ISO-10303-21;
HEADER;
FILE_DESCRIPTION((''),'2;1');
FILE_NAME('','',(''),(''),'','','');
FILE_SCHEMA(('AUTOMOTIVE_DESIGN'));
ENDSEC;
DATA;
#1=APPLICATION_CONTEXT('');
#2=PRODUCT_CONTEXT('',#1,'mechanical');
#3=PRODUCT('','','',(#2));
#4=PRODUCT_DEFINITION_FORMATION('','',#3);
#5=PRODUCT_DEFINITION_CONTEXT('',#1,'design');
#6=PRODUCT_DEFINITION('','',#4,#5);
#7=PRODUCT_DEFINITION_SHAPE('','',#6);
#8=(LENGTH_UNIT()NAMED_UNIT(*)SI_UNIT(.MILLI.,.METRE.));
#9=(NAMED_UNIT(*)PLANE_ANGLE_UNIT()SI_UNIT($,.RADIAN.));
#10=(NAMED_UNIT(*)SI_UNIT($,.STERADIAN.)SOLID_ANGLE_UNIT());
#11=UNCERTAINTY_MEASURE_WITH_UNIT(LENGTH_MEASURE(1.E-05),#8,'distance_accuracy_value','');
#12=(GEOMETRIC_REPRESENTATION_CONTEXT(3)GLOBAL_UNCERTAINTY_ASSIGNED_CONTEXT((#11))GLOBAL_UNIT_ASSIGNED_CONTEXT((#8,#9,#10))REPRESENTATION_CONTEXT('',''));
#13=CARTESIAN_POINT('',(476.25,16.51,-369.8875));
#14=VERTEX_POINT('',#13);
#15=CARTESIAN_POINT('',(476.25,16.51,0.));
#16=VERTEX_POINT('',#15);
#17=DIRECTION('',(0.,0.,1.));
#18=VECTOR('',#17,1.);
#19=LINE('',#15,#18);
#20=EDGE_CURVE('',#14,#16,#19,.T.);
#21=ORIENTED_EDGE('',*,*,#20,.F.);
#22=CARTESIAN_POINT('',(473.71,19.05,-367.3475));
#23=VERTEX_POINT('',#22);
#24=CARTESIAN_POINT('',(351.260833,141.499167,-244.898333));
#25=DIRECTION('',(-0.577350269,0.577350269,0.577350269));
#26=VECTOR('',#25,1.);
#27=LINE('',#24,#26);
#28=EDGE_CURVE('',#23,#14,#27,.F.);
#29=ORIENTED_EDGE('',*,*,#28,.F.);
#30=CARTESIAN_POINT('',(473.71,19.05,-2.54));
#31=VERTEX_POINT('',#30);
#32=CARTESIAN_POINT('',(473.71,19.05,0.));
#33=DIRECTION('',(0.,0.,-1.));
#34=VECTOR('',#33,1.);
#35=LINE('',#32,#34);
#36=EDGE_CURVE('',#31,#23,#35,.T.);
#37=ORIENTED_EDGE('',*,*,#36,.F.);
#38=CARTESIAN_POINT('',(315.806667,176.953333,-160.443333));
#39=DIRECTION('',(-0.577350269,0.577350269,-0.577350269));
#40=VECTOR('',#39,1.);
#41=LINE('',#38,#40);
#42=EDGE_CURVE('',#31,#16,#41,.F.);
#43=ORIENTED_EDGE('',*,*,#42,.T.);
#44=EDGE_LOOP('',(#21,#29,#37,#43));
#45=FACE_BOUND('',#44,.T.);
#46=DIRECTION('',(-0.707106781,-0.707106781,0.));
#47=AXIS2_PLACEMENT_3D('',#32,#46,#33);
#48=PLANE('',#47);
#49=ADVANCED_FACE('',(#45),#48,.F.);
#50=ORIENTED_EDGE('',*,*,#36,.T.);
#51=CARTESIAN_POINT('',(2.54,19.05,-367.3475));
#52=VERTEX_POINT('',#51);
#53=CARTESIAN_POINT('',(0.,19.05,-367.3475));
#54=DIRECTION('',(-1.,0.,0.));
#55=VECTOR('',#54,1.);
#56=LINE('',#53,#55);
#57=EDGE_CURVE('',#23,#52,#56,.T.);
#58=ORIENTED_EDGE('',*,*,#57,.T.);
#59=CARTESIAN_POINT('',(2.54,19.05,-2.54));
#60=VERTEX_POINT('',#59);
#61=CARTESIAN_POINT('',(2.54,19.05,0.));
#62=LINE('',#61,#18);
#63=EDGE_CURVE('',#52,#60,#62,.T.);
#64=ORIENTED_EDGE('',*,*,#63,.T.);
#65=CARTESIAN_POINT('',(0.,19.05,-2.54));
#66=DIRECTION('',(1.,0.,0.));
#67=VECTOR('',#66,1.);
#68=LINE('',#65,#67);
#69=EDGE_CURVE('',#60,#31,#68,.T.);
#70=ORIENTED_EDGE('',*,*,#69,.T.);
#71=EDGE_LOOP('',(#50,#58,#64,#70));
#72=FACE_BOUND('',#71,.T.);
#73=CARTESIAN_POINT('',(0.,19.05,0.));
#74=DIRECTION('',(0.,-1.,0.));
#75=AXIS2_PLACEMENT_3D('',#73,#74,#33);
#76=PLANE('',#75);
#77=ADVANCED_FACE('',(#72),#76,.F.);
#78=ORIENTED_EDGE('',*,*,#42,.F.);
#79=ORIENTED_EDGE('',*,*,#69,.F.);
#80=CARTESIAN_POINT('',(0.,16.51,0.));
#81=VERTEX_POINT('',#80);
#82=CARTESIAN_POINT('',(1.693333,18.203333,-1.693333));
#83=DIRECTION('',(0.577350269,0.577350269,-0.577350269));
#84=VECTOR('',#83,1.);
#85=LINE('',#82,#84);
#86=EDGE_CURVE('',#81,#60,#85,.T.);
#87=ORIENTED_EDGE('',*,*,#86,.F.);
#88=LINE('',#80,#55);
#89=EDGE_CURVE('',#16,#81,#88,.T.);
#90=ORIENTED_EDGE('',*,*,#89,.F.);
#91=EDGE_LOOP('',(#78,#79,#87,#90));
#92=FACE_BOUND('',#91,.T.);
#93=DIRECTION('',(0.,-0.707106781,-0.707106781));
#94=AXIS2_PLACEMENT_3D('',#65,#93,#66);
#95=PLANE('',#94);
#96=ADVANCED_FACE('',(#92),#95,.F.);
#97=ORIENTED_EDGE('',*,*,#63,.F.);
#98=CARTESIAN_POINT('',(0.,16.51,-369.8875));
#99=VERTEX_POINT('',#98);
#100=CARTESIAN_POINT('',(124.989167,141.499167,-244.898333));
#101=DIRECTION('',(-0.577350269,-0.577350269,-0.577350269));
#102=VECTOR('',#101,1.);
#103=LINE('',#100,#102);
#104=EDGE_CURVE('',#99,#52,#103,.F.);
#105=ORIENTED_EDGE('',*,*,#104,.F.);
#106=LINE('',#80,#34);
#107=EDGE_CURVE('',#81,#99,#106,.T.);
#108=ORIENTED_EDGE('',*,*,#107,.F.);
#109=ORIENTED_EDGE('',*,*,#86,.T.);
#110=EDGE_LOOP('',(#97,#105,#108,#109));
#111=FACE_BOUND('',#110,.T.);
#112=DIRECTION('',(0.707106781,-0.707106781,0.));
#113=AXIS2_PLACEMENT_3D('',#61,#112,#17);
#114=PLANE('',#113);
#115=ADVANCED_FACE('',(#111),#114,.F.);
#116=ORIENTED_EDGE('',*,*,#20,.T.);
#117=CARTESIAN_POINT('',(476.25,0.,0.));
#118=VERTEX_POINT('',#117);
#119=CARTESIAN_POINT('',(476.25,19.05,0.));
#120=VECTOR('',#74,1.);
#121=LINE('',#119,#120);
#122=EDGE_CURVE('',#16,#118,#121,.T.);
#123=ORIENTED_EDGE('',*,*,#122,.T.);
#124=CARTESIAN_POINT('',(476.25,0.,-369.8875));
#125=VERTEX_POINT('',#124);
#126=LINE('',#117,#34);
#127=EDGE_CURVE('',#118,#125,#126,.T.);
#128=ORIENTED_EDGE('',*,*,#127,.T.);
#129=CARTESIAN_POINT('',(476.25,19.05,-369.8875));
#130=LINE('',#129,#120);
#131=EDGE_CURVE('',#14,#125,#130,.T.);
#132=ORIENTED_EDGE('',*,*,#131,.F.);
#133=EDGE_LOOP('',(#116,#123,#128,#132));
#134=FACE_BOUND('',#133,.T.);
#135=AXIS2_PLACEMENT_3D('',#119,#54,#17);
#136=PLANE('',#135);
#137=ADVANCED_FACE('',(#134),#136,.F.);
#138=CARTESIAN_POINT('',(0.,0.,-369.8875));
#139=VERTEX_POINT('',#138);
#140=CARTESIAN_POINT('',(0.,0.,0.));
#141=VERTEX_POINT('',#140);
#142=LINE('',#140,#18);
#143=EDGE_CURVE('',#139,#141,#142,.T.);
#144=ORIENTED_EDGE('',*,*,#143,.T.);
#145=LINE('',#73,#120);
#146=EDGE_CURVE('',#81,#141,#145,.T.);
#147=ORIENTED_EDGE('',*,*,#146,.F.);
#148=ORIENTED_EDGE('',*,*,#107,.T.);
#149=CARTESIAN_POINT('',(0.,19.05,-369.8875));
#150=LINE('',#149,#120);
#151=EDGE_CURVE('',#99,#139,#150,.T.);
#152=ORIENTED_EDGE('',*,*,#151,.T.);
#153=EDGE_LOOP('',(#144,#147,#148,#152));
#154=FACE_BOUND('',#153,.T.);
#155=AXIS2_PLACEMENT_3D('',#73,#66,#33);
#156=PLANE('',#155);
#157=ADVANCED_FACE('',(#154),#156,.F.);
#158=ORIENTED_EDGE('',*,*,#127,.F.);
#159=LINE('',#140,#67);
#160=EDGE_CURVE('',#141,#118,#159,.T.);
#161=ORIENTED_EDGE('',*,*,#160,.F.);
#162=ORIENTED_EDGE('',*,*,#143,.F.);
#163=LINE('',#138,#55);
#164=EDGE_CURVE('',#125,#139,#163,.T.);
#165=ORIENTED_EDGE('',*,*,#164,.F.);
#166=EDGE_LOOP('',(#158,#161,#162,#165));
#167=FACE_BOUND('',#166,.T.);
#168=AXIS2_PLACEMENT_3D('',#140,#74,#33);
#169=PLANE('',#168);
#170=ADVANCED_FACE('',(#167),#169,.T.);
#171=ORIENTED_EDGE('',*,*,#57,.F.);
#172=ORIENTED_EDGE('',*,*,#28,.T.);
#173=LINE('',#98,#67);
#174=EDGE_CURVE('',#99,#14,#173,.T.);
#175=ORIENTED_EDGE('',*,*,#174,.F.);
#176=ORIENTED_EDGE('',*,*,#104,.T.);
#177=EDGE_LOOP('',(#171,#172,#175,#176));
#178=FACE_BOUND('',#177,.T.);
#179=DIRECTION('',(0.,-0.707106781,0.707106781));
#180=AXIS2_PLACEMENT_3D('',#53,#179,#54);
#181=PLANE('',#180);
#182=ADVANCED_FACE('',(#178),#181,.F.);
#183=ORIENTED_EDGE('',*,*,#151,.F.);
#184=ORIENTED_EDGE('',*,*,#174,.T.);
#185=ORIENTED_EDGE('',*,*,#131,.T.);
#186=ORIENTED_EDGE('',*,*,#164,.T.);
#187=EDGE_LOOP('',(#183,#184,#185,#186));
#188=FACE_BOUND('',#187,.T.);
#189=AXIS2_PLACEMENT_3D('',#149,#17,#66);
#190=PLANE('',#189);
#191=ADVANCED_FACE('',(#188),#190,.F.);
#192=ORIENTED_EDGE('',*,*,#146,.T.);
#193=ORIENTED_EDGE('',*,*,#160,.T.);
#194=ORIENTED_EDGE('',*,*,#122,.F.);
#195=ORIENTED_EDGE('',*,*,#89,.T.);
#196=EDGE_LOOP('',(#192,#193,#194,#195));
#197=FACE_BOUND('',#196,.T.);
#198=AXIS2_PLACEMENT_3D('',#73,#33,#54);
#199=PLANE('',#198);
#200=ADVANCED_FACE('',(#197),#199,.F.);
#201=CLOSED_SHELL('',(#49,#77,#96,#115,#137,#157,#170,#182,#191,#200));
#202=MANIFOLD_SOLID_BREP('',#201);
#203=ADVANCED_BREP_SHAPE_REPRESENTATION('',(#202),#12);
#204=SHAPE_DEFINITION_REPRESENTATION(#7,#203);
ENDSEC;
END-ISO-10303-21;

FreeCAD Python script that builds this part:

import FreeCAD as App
import Part
import Sketcher
Q = App.Units.Quantity


def edges_at(feature, points):
    """Names of the edges that pass closest to the given points."""
    edges = feature.Shape.Edges
    near = lambda p: min(range(len(edges)), key=lambda i: edges[i].distToShape(Part.Vertex(*p))[0])
    return sorted({f"Edge{near(p) + 1}" for p in points})

doc = App.newDocument("Part")
body = doc.addObject("PartDesign::Body", "Body")

sketch1 = body.newObject("Sketcher::SketchObject", "Sketch")
sketch1.AttachmentSupport = (doc.getObject("XZ_Plane"), [""])
sketch1.MapMode = "FlatFace"
sketch1.addGeometry(Part.LineSegment(App.Vector(0, -370, 0), App.Vector(0, 0, 0)), False)
sketch1.addGeometry(Part.LineSegment(App.Vector(0, 0, 0), App.Vector(476, 0, 0)), False)
sketch1.addGeometry(Part.LineSegment(App.Vector(476, 0, 0), App.Vector(476, -370, 0)), False)
sketch1.addGeometry(Part.LineSegment(App.Vector(476, -370, 0), App.Vector(0, -370, 0)), False)
sketch1.addConstraint(Sketcher.Constraint("Coincident", 0, 2, 1, 1))
sketch1.addConstraint(Sketcher.Constraint("Coincident", 1, 2, 2, 1))
sketch1.addConstraint(Sketcher.Constraint("Coincident", 2, 2, 3, 1))
sketch1.addConstraint(Sketcher.Constraint("Coincident", 3, 2, 0, 1))
sketch1.addConstraint(Sketcher.Constraint("Vertical", 0))
sketch1.addConstraint(Sketcher.Constraint("Horizontal", 1))
sketch1.addConstraint(Sketcher.Constraint("Vertical", 2))
sketch1.addConstraint(Sketcher.Constraint("Horizontal", 3))
sketch1.addConstraint(Sketcher.Constraint("Coincident", 0, 2, -1, 1))
sketch1.addConstraint(Sketcher.Constraint("DistanceX", 1, 1, 1, 2, Q("18.75 in")))
sketch1.addConstraint(Sketcher.Constraint("DistanceY", 0, 1, 0, 2, Q("14.5625 in")))
pad1 = body.newObject("PartDesign::Pad", "Pad")
pad1.Profile = sketch1
pad1.Length = Q("0.75 in")
pad1.Reversed = True
doc.recompute()

chamfer = body.newObject("PartDesign::Chamfer", "Chamfer")
chamfer.Base = (pad1, edges_at(pad1, [
    (476.25, 19.05, -184.944),
    (238.125, 19.05, -369.887),
    (0, 19.05, -184.944),
    (238.125, 19.05, 0),
]))
chamfer.Size = Q("0.1 in")

doc.recompute()
